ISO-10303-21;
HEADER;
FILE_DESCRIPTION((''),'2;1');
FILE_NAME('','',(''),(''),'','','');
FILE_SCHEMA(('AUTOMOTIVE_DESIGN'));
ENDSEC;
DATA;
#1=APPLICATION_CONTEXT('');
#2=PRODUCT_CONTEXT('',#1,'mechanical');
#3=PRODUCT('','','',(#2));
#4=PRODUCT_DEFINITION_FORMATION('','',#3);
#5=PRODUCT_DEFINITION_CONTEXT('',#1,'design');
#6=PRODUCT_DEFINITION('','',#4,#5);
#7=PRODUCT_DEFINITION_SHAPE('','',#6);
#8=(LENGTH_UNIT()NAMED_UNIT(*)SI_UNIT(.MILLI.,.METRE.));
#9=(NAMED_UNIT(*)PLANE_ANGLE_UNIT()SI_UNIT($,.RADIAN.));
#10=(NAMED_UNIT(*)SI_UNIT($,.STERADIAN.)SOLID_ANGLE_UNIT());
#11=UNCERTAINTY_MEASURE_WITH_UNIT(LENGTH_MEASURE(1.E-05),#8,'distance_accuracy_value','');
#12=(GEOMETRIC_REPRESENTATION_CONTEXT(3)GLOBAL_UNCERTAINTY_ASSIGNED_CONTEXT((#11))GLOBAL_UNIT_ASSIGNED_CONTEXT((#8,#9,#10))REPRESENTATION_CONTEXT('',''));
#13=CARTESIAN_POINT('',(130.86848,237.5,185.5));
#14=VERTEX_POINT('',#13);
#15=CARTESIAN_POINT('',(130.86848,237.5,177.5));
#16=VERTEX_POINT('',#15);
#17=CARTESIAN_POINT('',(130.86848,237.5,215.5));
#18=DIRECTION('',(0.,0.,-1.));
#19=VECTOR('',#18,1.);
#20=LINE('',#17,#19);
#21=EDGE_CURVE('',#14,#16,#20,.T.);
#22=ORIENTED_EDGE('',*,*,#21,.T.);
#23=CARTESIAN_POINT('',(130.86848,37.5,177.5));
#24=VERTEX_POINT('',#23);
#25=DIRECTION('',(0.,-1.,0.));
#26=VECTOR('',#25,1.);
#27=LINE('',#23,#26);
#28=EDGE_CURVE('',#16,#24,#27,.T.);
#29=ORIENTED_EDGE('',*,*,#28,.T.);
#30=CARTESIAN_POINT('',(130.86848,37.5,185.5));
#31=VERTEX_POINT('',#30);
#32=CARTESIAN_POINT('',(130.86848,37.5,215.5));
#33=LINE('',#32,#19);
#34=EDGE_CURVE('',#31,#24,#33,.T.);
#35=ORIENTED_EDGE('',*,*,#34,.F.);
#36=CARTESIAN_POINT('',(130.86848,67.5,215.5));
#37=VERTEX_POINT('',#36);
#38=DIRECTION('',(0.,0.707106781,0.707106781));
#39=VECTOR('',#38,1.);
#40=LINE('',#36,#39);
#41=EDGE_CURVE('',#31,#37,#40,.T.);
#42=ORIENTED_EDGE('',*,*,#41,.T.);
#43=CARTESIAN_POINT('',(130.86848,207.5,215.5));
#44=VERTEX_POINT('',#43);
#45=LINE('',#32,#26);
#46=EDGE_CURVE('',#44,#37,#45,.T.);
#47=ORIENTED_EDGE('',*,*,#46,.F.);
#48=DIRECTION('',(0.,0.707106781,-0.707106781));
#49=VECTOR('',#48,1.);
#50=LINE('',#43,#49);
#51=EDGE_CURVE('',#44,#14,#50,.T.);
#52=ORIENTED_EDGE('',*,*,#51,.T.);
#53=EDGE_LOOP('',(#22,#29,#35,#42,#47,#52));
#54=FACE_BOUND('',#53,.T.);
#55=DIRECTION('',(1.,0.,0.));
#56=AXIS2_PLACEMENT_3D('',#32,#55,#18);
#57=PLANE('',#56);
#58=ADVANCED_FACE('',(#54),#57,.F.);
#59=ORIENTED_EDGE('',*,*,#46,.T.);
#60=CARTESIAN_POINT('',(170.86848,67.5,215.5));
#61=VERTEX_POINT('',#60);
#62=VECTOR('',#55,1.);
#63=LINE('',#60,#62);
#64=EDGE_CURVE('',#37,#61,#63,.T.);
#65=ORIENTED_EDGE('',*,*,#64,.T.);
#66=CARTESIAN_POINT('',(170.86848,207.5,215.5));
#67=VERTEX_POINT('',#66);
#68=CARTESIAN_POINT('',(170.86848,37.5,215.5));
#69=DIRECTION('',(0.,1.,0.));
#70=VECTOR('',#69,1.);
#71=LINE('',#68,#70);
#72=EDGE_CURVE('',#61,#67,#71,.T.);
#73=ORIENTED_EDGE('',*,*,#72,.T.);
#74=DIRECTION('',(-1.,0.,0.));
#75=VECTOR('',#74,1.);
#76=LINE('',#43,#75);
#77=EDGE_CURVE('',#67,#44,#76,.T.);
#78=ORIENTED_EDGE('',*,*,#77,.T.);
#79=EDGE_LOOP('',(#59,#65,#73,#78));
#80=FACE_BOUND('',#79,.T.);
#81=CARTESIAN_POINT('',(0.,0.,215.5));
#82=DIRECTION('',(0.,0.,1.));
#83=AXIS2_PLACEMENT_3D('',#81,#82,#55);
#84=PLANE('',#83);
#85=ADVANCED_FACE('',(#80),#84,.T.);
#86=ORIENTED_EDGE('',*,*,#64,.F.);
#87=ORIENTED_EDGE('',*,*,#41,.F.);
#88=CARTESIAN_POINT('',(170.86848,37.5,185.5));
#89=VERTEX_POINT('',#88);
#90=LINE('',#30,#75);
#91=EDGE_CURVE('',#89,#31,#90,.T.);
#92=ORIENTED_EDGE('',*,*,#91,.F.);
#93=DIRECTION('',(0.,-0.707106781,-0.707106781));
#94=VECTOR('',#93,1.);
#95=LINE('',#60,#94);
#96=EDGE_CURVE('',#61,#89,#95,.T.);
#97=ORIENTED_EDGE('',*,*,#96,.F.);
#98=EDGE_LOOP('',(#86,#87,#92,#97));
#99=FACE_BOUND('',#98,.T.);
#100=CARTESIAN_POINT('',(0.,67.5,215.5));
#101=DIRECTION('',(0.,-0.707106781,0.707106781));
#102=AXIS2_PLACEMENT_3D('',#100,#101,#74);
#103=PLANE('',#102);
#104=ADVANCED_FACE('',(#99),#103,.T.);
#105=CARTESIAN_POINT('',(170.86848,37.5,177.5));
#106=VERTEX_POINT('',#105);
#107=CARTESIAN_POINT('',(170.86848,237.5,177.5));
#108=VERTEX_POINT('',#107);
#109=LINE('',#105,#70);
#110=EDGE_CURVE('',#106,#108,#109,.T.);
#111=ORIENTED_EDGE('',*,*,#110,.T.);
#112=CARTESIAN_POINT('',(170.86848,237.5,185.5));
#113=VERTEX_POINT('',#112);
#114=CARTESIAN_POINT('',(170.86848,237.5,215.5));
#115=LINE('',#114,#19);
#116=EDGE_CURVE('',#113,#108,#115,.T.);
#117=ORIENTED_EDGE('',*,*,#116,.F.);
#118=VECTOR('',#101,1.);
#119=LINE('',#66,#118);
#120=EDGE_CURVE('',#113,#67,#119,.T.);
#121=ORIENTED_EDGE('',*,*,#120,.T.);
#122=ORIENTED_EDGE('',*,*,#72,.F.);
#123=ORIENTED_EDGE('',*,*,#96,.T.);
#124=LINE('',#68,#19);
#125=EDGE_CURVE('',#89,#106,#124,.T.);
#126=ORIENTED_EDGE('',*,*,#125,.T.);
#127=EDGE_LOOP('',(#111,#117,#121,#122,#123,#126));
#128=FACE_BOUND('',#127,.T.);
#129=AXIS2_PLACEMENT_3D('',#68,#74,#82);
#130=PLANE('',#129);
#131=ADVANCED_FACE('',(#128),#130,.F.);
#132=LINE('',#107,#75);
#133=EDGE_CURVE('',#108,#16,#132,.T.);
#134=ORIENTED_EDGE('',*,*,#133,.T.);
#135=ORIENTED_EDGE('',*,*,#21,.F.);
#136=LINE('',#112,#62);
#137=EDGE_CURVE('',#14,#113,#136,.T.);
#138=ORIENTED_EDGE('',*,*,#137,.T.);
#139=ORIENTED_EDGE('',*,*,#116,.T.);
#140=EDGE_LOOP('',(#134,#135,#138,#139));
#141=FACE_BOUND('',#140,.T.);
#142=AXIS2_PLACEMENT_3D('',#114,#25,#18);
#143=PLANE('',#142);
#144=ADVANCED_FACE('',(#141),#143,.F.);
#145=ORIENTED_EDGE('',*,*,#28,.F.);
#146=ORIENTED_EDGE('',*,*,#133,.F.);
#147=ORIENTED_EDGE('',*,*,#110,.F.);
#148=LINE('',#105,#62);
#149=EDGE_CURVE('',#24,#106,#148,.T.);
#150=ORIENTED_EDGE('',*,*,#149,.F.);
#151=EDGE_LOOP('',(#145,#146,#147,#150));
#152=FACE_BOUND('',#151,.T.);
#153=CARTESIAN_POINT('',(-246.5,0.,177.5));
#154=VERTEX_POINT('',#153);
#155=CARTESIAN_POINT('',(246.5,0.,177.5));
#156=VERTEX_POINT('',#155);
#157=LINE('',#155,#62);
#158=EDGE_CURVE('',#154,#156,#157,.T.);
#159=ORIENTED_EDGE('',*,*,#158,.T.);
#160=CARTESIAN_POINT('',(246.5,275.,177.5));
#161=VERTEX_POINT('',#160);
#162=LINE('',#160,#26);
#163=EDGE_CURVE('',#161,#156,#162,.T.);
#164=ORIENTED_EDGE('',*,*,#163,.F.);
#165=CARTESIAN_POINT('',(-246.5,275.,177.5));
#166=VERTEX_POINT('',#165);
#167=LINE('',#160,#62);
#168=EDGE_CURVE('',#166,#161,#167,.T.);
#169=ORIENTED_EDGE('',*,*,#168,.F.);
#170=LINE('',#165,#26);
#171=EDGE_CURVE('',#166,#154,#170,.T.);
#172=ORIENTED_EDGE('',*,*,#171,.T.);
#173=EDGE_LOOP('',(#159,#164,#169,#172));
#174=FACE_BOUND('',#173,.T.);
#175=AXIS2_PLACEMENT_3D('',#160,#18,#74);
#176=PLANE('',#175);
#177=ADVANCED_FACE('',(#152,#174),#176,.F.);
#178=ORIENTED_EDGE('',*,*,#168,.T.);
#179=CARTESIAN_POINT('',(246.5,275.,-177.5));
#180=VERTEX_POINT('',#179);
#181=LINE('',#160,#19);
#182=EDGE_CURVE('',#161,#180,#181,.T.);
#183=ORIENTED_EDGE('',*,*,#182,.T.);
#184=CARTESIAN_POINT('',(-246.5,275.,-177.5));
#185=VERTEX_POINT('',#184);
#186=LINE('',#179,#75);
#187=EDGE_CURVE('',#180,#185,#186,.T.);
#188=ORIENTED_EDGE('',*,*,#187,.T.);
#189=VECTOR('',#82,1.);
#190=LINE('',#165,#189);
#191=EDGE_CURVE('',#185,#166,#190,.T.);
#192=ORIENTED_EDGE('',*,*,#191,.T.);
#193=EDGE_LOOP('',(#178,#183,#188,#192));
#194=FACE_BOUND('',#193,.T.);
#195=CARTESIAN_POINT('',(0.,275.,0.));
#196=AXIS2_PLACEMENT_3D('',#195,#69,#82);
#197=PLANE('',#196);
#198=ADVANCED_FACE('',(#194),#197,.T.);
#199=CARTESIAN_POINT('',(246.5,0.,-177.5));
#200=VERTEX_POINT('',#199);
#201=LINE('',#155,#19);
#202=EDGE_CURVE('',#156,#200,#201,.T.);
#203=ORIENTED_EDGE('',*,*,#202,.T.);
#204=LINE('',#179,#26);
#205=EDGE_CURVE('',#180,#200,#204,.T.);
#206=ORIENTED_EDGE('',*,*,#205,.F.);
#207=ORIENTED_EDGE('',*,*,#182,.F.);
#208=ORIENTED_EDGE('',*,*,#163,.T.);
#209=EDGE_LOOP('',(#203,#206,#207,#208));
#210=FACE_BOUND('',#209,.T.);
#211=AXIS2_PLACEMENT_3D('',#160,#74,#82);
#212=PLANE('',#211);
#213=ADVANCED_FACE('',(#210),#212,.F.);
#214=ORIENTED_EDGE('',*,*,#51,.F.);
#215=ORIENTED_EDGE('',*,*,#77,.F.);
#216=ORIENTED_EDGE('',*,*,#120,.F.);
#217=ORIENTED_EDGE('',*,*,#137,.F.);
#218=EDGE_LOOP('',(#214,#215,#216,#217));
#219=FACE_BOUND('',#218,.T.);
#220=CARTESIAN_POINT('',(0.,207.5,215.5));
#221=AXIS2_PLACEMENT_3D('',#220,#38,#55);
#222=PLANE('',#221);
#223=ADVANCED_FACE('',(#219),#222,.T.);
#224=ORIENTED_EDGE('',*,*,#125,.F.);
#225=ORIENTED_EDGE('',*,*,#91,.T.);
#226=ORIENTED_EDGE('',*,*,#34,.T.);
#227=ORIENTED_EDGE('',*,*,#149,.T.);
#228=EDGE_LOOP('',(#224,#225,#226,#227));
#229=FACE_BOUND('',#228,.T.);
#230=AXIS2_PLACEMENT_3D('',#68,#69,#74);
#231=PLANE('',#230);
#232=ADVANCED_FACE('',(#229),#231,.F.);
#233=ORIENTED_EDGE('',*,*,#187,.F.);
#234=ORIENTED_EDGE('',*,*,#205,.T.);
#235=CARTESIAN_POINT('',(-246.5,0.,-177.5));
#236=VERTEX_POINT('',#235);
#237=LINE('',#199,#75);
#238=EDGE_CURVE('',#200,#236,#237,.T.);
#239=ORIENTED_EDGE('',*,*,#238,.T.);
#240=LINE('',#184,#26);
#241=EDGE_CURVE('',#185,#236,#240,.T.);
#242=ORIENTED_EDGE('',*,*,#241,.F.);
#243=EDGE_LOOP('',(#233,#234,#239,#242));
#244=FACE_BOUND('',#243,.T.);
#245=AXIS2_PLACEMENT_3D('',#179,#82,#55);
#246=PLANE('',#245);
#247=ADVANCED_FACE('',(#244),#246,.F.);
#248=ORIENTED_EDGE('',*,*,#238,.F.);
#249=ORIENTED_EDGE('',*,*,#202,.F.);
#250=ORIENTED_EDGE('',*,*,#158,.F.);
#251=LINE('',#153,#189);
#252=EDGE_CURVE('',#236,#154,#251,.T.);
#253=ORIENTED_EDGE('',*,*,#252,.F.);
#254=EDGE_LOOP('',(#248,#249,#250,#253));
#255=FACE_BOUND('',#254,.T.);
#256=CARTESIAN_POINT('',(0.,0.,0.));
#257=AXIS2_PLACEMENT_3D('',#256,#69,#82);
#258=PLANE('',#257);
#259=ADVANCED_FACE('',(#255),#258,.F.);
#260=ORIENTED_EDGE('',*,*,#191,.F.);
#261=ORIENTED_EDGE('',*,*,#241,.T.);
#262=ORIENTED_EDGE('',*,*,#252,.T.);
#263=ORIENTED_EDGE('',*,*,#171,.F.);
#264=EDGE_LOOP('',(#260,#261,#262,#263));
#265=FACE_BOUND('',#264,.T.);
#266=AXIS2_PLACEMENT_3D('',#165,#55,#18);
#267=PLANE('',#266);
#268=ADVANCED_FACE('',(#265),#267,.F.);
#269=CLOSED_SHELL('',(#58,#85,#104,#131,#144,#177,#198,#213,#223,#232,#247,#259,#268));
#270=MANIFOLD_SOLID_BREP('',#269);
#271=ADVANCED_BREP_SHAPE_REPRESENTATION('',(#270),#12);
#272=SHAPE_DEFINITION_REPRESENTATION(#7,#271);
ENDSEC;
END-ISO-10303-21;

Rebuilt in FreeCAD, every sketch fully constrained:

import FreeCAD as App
import Part
import Sketcher

V = App.Vector


def edges_at(feature, points):
    """Names of the edges that pass closest to the given points."""
    edges = feature.Shape.Edges
    near = lambda p: min(range(len(edges)), key=lambda i: edges[i].distToShape(Part.Vertex(*p))[0])
    return sorted({f"Edge{near(p) + 1}" for p in points})


def add_polygon(sketch, points):
    """Adds a closed chain of lines whose ends are joined by coincident constraints."""
    first, n = sketch.GeometryCount, len(points)
    for a, b in zip(points, points[1:] + points[:1]):
        sketch.addGeometry(Part.LineSegment(App.Vector(*a, 0), App.Vector(*b, 0)), False)
    for i in range(n):
        sketch.addConstraint(Sketcher.Constraint("Coincident", first + i, 2, first + (i + 1) % n, 1))

doc = App.newDocument("Part")
params = doc.addObject("Spreadsheet::Sheet", "Params")
for row, (alias, value) in enumerate([
    ("sketch1_width", "493 mm"),
    ("sketch1_height", "355 mm"),
    ("pad1_length", "275 mm"),
    ("sketch2_width", "40 mm"),
    ("sketch2_height", "200 mm"),
    ("pad2_length", "38 mm"),
    ("chamfer_size", "30 mm"),
], start=1):
    params.set(f"A{row}", alias)
    params.set(f"B{row}", "=" + value)
    params.setAlias(f"B{row}", alias)

body = doc.addObject("PartDesign::Body", "Body")

sketch1 = body.newObject("Sketcher::SketchObject", "Sketch")
sketch1.AttachmentSupport = (doc.getObject("XZ_Plane"), [""])
sketch1.MapMode = "FlatFace"
add_polygon(sketch1, [(-246, -178), (-246, 178), (246, 178), (246, -178)])
sketch1.addConstraint([
    Sketcher.Constraint("Vertical", 0),
    Sketcher.Constraint("Horizontal", 1),
    Sketcher.Constraint("Vertical", 2),
    Sketcher.Constraint("Horizontal", 3),
    Sketcher.Constraint("Symmetric", 0, 2, 2, 2, -1, 1),
    Sketcher.Constraint("DistanceX", 1, 1, 1, 2, 493.0),
    Sketcher.Constraint("DistanceY", 0, 1, 0, 2, 355.0),
])
sketch1.setExpression("Constraints[9]", "Params.sketch1_width")
sketch1.setExpression("Constraints[10]", "Params.sketch1_height")
pad1 = body.newObject("PartDesign::Pad", "Pad")
pad1.Profile = sketch1
pad1.setExpression("Length", "Params.pad1_length")
pad1.Reversed = True

sketch2 = body.newObject("Sketcher::SketchObject", "Sketch001")
sketch2.AttachmentSupport = (doc.getObject("XY_Plane"), [""])
sketch2.MapMode = "FlatFace"
sketch2.AttachmentOffset = App.Placement(V(0, 0, 177.5), App.Rotation())
add_polygon(sketch2, [(131, 238), (131, 38), (171, 38), (171, 238)])
sketch2.addConstraint([
    Sketcher.Constraint("Vertical", 0),
    Sketcher.Constraint("Horizontal", 1),
    Sketcher.Constraint("Vertical", 2),
    Sketcher.Constraint("Horizontal", 3),
    Sketcher.Constraint("DistanceX", 1, 1, 1, 2, 40.0),
    Sketcher.Constraint("DistanceY", 0, 2, 0, 1, 200.0),
    Sketcher.Constraint("DistanceY", -1, 1, 0, 2, 37.5),
    Sketcher.Constraint("DistanceX", -1, 1, 0, 2, 130.86848),
])
sketch2.setExpression("Constraints[8]", "Params.sketch2_width")
sketch2.setExpression("Constraints[9]", "Params.sketch2_height")
pad2 = body.newObject("PartDesign::Pad", "Pad001")
pad2.Profile = sketch2
pad2.setExpression("Length", "Params.pad2_length")
doc.recompute()

chamfer = body.newObject("PartDesign::Chamfer", "Chamfer")
chamfer.Base = (pad2, edges_at(pad2, [(150.868, 37.5, 215.5), (150.868, 237.5, 215.5)]))
chamfer.setExpression("Size", "Params.chamfer_size")

doc.recompute()
